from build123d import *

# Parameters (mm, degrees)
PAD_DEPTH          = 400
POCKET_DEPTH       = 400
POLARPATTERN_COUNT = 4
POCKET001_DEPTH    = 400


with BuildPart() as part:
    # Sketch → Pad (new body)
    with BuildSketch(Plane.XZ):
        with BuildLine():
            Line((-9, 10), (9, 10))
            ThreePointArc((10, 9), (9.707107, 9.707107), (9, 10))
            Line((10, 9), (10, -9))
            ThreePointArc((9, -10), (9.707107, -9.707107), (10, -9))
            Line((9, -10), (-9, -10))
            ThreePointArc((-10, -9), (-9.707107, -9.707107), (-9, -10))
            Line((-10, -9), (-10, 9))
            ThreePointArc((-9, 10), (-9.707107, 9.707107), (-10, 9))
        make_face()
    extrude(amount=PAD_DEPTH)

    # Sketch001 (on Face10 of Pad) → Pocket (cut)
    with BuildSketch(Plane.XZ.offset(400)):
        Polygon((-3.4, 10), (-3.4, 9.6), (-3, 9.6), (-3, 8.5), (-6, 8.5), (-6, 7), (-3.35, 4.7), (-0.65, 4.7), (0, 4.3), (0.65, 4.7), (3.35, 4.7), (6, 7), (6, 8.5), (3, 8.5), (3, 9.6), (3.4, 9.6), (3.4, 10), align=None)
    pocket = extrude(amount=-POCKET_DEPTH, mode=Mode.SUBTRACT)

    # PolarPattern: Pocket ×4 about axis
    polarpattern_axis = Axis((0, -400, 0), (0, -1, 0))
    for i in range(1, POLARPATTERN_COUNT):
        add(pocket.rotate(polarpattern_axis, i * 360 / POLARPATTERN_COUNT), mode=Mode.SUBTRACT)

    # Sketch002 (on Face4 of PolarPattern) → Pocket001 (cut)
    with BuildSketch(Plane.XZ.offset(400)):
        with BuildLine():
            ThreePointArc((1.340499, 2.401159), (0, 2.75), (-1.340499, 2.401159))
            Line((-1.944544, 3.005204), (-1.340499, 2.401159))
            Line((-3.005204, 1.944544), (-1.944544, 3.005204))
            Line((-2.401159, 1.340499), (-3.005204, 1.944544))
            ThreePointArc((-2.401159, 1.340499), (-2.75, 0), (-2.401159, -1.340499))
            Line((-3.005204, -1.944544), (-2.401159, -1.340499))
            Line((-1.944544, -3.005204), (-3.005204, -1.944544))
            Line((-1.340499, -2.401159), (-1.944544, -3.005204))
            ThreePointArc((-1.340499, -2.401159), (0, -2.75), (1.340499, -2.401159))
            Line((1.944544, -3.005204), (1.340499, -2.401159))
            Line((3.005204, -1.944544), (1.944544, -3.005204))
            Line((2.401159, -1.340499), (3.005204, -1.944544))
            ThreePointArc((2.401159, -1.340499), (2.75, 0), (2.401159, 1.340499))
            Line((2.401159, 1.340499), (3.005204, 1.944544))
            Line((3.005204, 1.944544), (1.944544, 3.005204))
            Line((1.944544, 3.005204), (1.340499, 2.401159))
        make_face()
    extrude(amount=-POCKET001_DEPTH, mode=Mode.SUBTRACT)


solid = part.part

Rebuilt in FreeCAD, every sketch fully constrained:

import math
import FreeCAD as App
import Part
import Sketcher
from FreeCAD import Vector
Q = App.Units.Quantity

doc = App.newDocument("Part")
body = doc.addObject("PartDesign::Body", "Body")

# Sketch on XZ plane
sketch1 = doc.addObject("Sketcher::SketchObject", "Sketch")
body.addObject(sketch1)
sketch1.AttachmentSupport = (doc.XZ_Plane, [""])
sketch1.MapMode = "FlatFace"
sketch1.addGeometry(Part.LineSegment(Vector(9, 10, 0), Vector(-9, 10, 0)), False)
sketch1.addGeometry(Part.ArcOfCircle(Part.Circle(Vector(-9, 9, 0), Vector(0, 0, 1), 1), math.radians(90), math.radians(180)), False)
sketch1.addGeometry(Part.LineSegment(Vector(-10, 9, 0), Vector(-10, -9, 0)), False)
sketch1.addGeometry(Part.ArcOfCircle(Part.Circle(Vector(-9, -9, 0), Vector(0, 0, 1), 1), math.radians(180), math.radians(270)), False)
sketch1.addGeometry(Part.LineSegment(Vector(-9, -10, 0), Vector(9, -10, 0)), False)
sketch1.addGeometry(Part.ArcOfCircle(Part.Circle(Vector(9, -9, 0), Vector(0, 0, 1), 1), math.radians(-90), math.radians(0)), False)
sketch1.addGeometry(Part.LineSegment(Vector(10, -9, 0), Vector(10, 9, 0)), False)
sketch1.addGeometry(Part.ArcOfCircle(Part.Circle(Vector(9, 9, 0), Vector(0, 0, 1), 1), math.radians(0), math.radians(90)), False)
sketch1.addConstraint(Sketcher.Constraint("Tangent", 0, 2, 1, 1))
sketch1.addConstraint(Sketcher.Constraint("Tangent", 1, 2, 2, 1))
sketch1.addConstraint(Sketcher.Constraint("Tangent", 2, 2, 3, 1))
sketch1.addConstraint(Sketcher.Constraint("Tangent", 3, 2, 4, 1))
sketch1.addConstraint(Sketcher.Constraint("Tangent", 4, 2, 5, 1))
sketch1.addConstraint(Sketcher.Constraint("Tangent", 5, 2, 6, 1))
sketch1.addConstraint(Sketcher.Constraint("Tangent", 6, 2, 7, 1))
sketch1.addConstraint(Sketcher.Constraint("Tangent", 7, 2, 0, 1))
sketch1.addConstraint(Sketcher.Constraint("Horizontal", 0))
sketch1.addConstraint(Sketcher.Constraint("Vertical", 2))
sketch1.addConstraint(Sketcher.Constraint("Horizontal", 4))
sketch1.addConstraint(Sketcher.Constraint("Vertical", 6))
sketch1.addConstraint(Sketcher.Constraint("Equal", 1, 3))
sketch1.addConstraint(Sketcher.Constraint("Equal", 3, 5))
sketch1.addConstraint(Sketcher.Constraint("Equal", 5, 7))
sketch1.addConstraint(Sketcher.Constraint("Symmetric", 1, 3, 5, 3, -1, 1))
sketch1.addConstraint(Sketcher.Constraint("Equal", 4, 2))
sketch1.addConstraint(Sketcher.Constraint("Radius", 1, Q("0.999999 mm")))
sketch1.addConstraint(Sketcher.Constraint("DistanceX", 0, 2, 0, 1, Q("18 mm")))
pad1 = doc.addObject("PartDesign::Pad", "Pad")
body.addObject(pad1)
pad1.Profile = sketch1
pad1.Length = 400

# Sketch on XZ plane
sketch2 = doc.addObject("Sketcher::SketchObject", "Sketch001")
body.addObject(sketch2)
sketch2.AttachmentSupport = (doc.XZ_Plane, [""])
sketch2.MapMode = "FlatFace"
sketch2.AttachmentOffset = App.Placement(Vector(0, 0, 400), App.Rotation())
sketch2.addGeometry(Part.LineSegment(Vector(-3.4, 10, 0), Vector(-3.4, 9.6, 0)), False)
sketch2.addGeometry(Part.LineSegment(Vector(-3.4, 9.6, 0), Vector(-3, 9.6, 0)), False)
sketch2.addGeometry(Part.LineSegment(Vector(-3, 9.6, 0), Vector(-3, 8.5, 0)), False)
sketch2.addGeometry(Part.LineSegment(Vector(-3, 8.5, 0), Vector(-6, 8.5, 0)), False)
sketch2.addGeometry(Part.LineSegment(Vector(-6, 8.5, 0), Vector(-6, 7, 0)), False)
sketch2.addGeometry(Part.LineSegment(Vector(-6, 7, 0), Vector(-3.35, 4.7, 0)), False)
sketch2.addGeometry(Part.LineSegment(Vector(-3.35, 4.7, 0), Vector(-0.65, 4.7, 0)), False)
sketch2.addGeometry(Part.LineSegment(Vector(-0.65, 4.7, 0), Vector(0, 4.3, 0)), False)
sketch2.addGeometry(Part.LineSegment(Vector(0, 4.3, 0), Vector(0.65, 4.7, 0)), False)
sketch2.addGeometry(Part.LineSegment(Vector(0.65, 4.7, 0), Vector(3.35, 4.7, 0)), False)
sketch2.addGeometry(Part.LineSegment(Vector(3.35, 4.7, 0), Vector(6, 7, 0)), False)
sketch2.addGeometry(Part.LineSegment(Vector(6, 7, 0), Vector(6, 8.5, 0)), False)
sketch2.addGeometry(Part.LineSegment(Vector(6, 8.5, 0), Vector(3, 8.5, 0)), False)
sketch2.addGeometry(Part.LineSegment(Vector(3, 8.5, 0), Vector(3, 9.6, 0)), False)
sketch2.addGeometry(Part.LineSegment(Vector(3, 9.6, 0), Vector(3.4, 9.6, 0)), False)
sketch2.addGeometry(Part.LineSegment(Vector(3.4, 9.6, 0), Vector(3.4, 10, 0)), False)
sketch2.addGeometry(Part.LineSegment(Vector(3.4, 10, 0), Vector(-3.4, 10, 0)), False)
sketch2.addConstraint(Sketcher.Constraint("Coincident", 0, 2, 1, 1))
sketch2.addConstraint(Sketcher.Constraint("Coincident", 1, 2, 2, 1))
sketch2.addConstraint(Sketcher.Constraint("Coincident", 2, 2, 3, 1))
sketch2.addConstraint(Sketcher.Constraint("Coincident", 3, 2, 4, 1))
sketch2.addConstraint(Sketcher.Constraint("Coincident", 4, 2, 5, 1))
sketch2.addConstraint(Sketcher.Constraint("Coincident", 5, 2, 6, 1))
sketch2.addConstraint(Sketcher.Constraint("Coincident", 6, 2, 7, 1))
sketch2.addConstraint(Sketcher.Constraint("Coincident", 7, 2, 8, 1))
sketch2.addConstraint(Sketcher.Constraint("Coincident", 8, 2, 9, 1))
sketch2.addConstraint(Sketcher.Constraint("Coincident", 9, 2, 10, 1))
sketch2.addConstraint(Sketcher.Constraint("Coincident", 10, 2, 11, 1))
sketch2.addConstraint(Sketcher.Constraint("Coincident", 11, 2, 12, 1))
sketch2.addConstraint(Sketcher.Constraint("Coincident", 12, 2, 13, 1))
sketch2.addConstraint(Sketcher.Constraint("Coincident", 13, 2, 14, 1))
sketch2.addConstraint(Sketcher.Constraint("Coincident", 14, 2, 15, 1))
sketch2.addConstraint(Sketcher.Constraint("Coincident", 15, 2, 16, 1))
sketch2.addConstraint(Sketcher.Constraint("Coincident", 16, 2, 0, 1))
sketch2.addConstraint(Sketcher.Constraint("Vertical", 0))
sketch2.addConstraint(Sketcher.Constraint("Horizontal", 1))
sketch2.addConstraint(Sketcher.Constraint("Vertical", 2))
sketch2.addConstraint(Sketcher.Constraint("Horizontal", 3))
sketch2.addConstraint(Sketcher.Constraint("Vertical", 4))
sketch2.addConstraint(Sketcher.Constraint("Horizontal", 6))
sketch2.addConstraint(Sketcher.Constraint("Horizontal", 9))
sketch2.addConstraint(Sketcher.Constraint("Vertical", 11))
sketch2.addConstraint(Sketcher.Constraint("Horizontal", 12))
sketch2.addConstraint(Sketcher.Constraint("Vertical", 13))
sketch2.addConstraint(Sketcher.Constraint("Horizontal", 14))
sketch2.addConstraint(Sketcher.Constraint("Vertical", 15))
sketch2.addConstraint(Sketcher.Constraint("Horizontal", 16))
sketch2.addConstraint(Sketcher.Constraint("Symmetric", 6, 2, 8, 2, -2))
sketch2.addConstraint(Sketcher.Constraint("Symmetric", 4, 2, 10, 2, -2))
sketch2.addConstraint(Sketcher.Constraint("Symmetric", 2, 2, 12, 2, -2))
sketch2.addConstraint(Sketcher.Constraint("Symmetric", 0, 2, 14, 2, -2))
sketch2.addConstraint(Sketcher.Constraint("PointOnObject", 7, 2, -2))
sketch2.addConstraint(Sketcher.Constraint("Equal", 6, 9))
sketch2.addConstraint(Sketcher.Constraint("Equal", 14, 0))
sketch2.addConstraint(Sketcher.Constraint("DistanceX", 3, 2, 3, 1, Q("3 mm")))
sketch2.addConstraint(Sketcher.Constraint("DistanceX", 1, 1, 1, 2, Q("0.4 mm")))
sketch2.addConstraint(Sketcher.Constraint("DistanceX", 6, 1, 6, 2, Q("2.7 mm")))
sketch2.addConstraint(Sketcher.Constraint("DistanceX", 16, 2, 16, 1, Q("6.8 mm")))
sketch2.addConstraint(Sketcher.Constraint("DistanceY", 2, 2, 2, 1, Q("1.1 mm")))
sketch2.addConstraint(Sketcher.Constraint("DistanceY", 4, 2, 4, 1, Q("1.5 mm")))
sketch2.addConstraint(Sketcher.Constraint("DistanceY", -1, 1, 4, 2, Q("7 mm")))
sketch2.addConstraint(Sketcher.Constraint("DistanceX", 5, 2, 8, 2, Q("4 mm")))
sketch2.addConstraint(Sketcher.Constraint("DistanceY", -1, 1, 5, 2, Q("4.7 mm")))
sketch2.addConstraint(Sketcher.Constraint("DistanceY", -1, 1, 7, 2, Q("4.3 mm")))
pocket1 = doc.addObject("PartDesign::Pocket", "Pocket")
body.addObject(pocket1)
pocket1.Profile = sketch2
pocket1.Length = 400
doc.recompute()

polarpattern = doc.addObject("PartDesign::PolarPattern", "PolarPattern")
body.addObject(polarpattern)
polarpattern.Originals = [pocket1]
polarpattern.Axis = (doc.Y_Axis, [""])
polarpattern.Angle = 360
polarpattern.Occurrences = 4
body.Tip = polarpattern

# Sketch on XZ plane
sketch3 = doc.addObject("Sketcher::SketchObject", "Sketch002")
body.addObject(sketch3)
sketch3.AttachmentSupport = (doc.XZ_Plane, [""])
sketch3.MapMode = "FlatFace"
sketch3.AttachmentOffset = App.Placement(Vector(0, 0, 400), App.Rotation())
sketch3.addGeometry(Part.ArcOfCircle(Part.Circle(Vector(0, 0, 0), Vector(0, 0, 1), 2.8), math.radians(61), math.radians(119)), False)
sketch3.addGeometry(Part.LineSegment(Vector(-1.3, 2.4, 0), Vector(-1.9, 3, 0)), False)
sketch3.addGeometry(Part.LineSegment(Vector(-1.9, 3, 0), Vector(-3, 1.9, 0)), False)
sketch3.addGeometry(Part.LineSegment(Vector(-3, 1.9, 0), Vector(-2.4, 1.3, 0)), False)
sketch3.addGeometry(Part.ArcOfCircle(Part.Circle(Vector(0, 0, 0), Vector(0, 0, 1), 2.8), math.radians(151), math.radians(209)), False)
sketch3.addGeometry(Part.LineSegment(Vector(-2.4, -1.3, 0), Vector(-3, -1.9, 0)), False)
sketch3.addGeometry(Part.LineSegment(Vector(-3, -1.9, 0), Vector(-1.9, -3, 0)), False)
sketch3.addGeometry(Part.LineSegment(Vector(-1.9, -3, 0), Vector(-1.3, -2.4, 0)), False)
sketch3.addGeometry(Part.ArcOfCircle(Part.Circle(Vector(0, 0, 0), Vector(0, 0, 1), 2.8), math.radians(-119), math.radians(-61)), False)
sketch3.addGeometry(Part.LineSegment(Vector(1.3, -2.4, 0), Vector(1.9, -3, 0)), False)
sketch3.addGeometry(Part.LineSegment(Vector(1.9, -3, 0), Vector(3, -1.9, 0)), False)
sketch3.addGeometry(Part.LineSegment(Vector(3, -1.9, 0), Vector(2.4, -1.3, 0)), False)
sketch3.addGeometry(Part.ArcOfCircle(Part.Circle(Vector(0, 0, 0), Vector(0, 0, 1), 2.8), math.radians(-29), math.radians(29)), False)
sketch3.addGeometry(Part.LineSegment(Vector(2.4, 1.3, 0), Vector(3, 1.9, 0)), False)
sketch3.addGeometry(Part.LineSegment(Vector(3, 1.9, 0), Vector(1.9, 3, 0)), False)
sketch3.addGeometry(Part.LineSegment(Vector(1.9, 3, 0), Vector(1.3, 2.4, 0)), False)
sketch3.addConstraint(Sketcher.Constraint("Coincident", 0, 2, 1, 1))
sketch3.addConstraint(Sketcher.Constraint("Coincident", 1, 2, 2, 1))
sketch3.addConstraint(Sketcher.Constraint("Coincident", 2, 2, 3, 1))
sketch3.addConstraint(Sketcher.Constraint("Coincident", 3, 2, 4, 1))
sketch3.addConstraint(Sketcher.Constraint("Coincident", 4, 2, 5, 1))
sketch3.addConstraint(Sketcher.Constraint("Coincident", 5, 2, 6, 1))
sketch3.addConstraint(Sketcher.Constraint("Coincident", 6, 2, 7, 1))
sketch3.addConstraint(Sketcher.Constraint("Coincident", 7, 2, 8, 1))
sketch3.addConstraint(Sketcher.Constraint("Coincident", 8, 2, 9, 1))
sketch3.addConstraint(Sketcher.Constraint("Coincident", 9, 2, 10, 1))
sketch3.addConstraint(Sketcher.Constraint("Coincident", 10, 2, 11, 1))
sketch3.addConstraint(Sketcher.Constraint("Coincident", 11, 2, 12, 1))
sketch3.addConstraint(Sketcher.Constraint("Coincident", 12, 2, 13, 1))
sketch3.addConstraint(Sketcher.Constraint("Coincident", 13, 2, 14, 1))
sketch3.addConstraint(Sketcher.Constraint("Coincident", 14, 2, 15, 1))
sketch3.addConstraint(Sketcher.Constraint("Coincident", 15, 2, 0, 1))
sketch3.addConstraint(Sketcher.Constraint("Coincident", 0, 3, -1, 1))
sketch3.addConstraint(Sketcher.Constraint("Coincident", 4, 3, -1, 1))
sketch3.addConstraint(Sketcher.Constraint("Coincident", 8, 3, -1, 1))
sketch3.addConstraint(Sketcher.Constraint("Coincident", 12, 3, -1, 1))
sketch3.addConstraint(Sketcher.Constraint("Equal", 0, 4))
sketch3.addConstraint(Sketcher.Constraint("Equal", 4, 8))
sketch3.addConstraint(Sketcher.Constraint("Equal", 8, 12))
sketch3.addConstraint(Sketcher.Constraint("Symmetric", 1, 2, 9, 2, -1, 1))
sketch3.addConstraint(Sketcher.Constraint("Symmetric", 2, 2, 10, 2, -1, 1))
sketch3.addConstraint(Sketcher.Constraint("Symmetric", 5, 2, 13, 2, -1, 1))
sketch3.addConstraint(Sketcher.Constraint("Symmetric", 6, 2, 14, 2, -1, 1))
sketch3.addConstraint(Sketcher.Constraint("Symmetric", 6, 2, 9, 2, -2))
sketch3.addConstraint(Sketcher.Constraint("Symmetric", 5, 2, 10, 2, -2))
sketch3.addConstraint(Sketcher.Constraint("Perpendicular", 1, 2))
sketch3.addConstraint(Sketcher.Constraint("Perpendicular", 2, 3))
sketch3.addConstraint(Sketcher.Constraint("Perpendicular", 3, 5))
sketch3.addConstraint(Sketcher.Constraint("Perpendicular", 5, 6))
sketch3.addConstraint(Sketcher.Constraint("Perpendicular", 6, 7))
sketch3.addConstraint(Sketcher.Constraint("Perpendicular", 7, 9))
sketch3.addConstraint(Sketcher.Constraint("Perpendicular", 10, 11))
sketch3.addConstraint(Sketcher.Constraint("Perpendicular", 11, 13))
sketch3.addConstraint(Sketcher.Constraint("Perpendicular", 14, 15))
sketch3.addConstraint(Sketcher.Constraint("Equal", 1, 3))
sketch3.addConstraint(Sketcher.Constraint("Distance", 2, Q("1.5 mm")))
sketch3.addConstraint(Sketcher.Constraint("Radius", 0, Q("2.750003 mm")))
sketch3.addConstraint(Sketcher.Constraint("DistanceY", 8, 3, 1, 2, Q("3.005201 mm")))
pocket2 = doc.addObject("PartDesign::Pocket", "Pocket001")
body.addObject(pocket2)
pocket2.Profile = sketch3
pocket2.Length = 400

doc.recompute()
